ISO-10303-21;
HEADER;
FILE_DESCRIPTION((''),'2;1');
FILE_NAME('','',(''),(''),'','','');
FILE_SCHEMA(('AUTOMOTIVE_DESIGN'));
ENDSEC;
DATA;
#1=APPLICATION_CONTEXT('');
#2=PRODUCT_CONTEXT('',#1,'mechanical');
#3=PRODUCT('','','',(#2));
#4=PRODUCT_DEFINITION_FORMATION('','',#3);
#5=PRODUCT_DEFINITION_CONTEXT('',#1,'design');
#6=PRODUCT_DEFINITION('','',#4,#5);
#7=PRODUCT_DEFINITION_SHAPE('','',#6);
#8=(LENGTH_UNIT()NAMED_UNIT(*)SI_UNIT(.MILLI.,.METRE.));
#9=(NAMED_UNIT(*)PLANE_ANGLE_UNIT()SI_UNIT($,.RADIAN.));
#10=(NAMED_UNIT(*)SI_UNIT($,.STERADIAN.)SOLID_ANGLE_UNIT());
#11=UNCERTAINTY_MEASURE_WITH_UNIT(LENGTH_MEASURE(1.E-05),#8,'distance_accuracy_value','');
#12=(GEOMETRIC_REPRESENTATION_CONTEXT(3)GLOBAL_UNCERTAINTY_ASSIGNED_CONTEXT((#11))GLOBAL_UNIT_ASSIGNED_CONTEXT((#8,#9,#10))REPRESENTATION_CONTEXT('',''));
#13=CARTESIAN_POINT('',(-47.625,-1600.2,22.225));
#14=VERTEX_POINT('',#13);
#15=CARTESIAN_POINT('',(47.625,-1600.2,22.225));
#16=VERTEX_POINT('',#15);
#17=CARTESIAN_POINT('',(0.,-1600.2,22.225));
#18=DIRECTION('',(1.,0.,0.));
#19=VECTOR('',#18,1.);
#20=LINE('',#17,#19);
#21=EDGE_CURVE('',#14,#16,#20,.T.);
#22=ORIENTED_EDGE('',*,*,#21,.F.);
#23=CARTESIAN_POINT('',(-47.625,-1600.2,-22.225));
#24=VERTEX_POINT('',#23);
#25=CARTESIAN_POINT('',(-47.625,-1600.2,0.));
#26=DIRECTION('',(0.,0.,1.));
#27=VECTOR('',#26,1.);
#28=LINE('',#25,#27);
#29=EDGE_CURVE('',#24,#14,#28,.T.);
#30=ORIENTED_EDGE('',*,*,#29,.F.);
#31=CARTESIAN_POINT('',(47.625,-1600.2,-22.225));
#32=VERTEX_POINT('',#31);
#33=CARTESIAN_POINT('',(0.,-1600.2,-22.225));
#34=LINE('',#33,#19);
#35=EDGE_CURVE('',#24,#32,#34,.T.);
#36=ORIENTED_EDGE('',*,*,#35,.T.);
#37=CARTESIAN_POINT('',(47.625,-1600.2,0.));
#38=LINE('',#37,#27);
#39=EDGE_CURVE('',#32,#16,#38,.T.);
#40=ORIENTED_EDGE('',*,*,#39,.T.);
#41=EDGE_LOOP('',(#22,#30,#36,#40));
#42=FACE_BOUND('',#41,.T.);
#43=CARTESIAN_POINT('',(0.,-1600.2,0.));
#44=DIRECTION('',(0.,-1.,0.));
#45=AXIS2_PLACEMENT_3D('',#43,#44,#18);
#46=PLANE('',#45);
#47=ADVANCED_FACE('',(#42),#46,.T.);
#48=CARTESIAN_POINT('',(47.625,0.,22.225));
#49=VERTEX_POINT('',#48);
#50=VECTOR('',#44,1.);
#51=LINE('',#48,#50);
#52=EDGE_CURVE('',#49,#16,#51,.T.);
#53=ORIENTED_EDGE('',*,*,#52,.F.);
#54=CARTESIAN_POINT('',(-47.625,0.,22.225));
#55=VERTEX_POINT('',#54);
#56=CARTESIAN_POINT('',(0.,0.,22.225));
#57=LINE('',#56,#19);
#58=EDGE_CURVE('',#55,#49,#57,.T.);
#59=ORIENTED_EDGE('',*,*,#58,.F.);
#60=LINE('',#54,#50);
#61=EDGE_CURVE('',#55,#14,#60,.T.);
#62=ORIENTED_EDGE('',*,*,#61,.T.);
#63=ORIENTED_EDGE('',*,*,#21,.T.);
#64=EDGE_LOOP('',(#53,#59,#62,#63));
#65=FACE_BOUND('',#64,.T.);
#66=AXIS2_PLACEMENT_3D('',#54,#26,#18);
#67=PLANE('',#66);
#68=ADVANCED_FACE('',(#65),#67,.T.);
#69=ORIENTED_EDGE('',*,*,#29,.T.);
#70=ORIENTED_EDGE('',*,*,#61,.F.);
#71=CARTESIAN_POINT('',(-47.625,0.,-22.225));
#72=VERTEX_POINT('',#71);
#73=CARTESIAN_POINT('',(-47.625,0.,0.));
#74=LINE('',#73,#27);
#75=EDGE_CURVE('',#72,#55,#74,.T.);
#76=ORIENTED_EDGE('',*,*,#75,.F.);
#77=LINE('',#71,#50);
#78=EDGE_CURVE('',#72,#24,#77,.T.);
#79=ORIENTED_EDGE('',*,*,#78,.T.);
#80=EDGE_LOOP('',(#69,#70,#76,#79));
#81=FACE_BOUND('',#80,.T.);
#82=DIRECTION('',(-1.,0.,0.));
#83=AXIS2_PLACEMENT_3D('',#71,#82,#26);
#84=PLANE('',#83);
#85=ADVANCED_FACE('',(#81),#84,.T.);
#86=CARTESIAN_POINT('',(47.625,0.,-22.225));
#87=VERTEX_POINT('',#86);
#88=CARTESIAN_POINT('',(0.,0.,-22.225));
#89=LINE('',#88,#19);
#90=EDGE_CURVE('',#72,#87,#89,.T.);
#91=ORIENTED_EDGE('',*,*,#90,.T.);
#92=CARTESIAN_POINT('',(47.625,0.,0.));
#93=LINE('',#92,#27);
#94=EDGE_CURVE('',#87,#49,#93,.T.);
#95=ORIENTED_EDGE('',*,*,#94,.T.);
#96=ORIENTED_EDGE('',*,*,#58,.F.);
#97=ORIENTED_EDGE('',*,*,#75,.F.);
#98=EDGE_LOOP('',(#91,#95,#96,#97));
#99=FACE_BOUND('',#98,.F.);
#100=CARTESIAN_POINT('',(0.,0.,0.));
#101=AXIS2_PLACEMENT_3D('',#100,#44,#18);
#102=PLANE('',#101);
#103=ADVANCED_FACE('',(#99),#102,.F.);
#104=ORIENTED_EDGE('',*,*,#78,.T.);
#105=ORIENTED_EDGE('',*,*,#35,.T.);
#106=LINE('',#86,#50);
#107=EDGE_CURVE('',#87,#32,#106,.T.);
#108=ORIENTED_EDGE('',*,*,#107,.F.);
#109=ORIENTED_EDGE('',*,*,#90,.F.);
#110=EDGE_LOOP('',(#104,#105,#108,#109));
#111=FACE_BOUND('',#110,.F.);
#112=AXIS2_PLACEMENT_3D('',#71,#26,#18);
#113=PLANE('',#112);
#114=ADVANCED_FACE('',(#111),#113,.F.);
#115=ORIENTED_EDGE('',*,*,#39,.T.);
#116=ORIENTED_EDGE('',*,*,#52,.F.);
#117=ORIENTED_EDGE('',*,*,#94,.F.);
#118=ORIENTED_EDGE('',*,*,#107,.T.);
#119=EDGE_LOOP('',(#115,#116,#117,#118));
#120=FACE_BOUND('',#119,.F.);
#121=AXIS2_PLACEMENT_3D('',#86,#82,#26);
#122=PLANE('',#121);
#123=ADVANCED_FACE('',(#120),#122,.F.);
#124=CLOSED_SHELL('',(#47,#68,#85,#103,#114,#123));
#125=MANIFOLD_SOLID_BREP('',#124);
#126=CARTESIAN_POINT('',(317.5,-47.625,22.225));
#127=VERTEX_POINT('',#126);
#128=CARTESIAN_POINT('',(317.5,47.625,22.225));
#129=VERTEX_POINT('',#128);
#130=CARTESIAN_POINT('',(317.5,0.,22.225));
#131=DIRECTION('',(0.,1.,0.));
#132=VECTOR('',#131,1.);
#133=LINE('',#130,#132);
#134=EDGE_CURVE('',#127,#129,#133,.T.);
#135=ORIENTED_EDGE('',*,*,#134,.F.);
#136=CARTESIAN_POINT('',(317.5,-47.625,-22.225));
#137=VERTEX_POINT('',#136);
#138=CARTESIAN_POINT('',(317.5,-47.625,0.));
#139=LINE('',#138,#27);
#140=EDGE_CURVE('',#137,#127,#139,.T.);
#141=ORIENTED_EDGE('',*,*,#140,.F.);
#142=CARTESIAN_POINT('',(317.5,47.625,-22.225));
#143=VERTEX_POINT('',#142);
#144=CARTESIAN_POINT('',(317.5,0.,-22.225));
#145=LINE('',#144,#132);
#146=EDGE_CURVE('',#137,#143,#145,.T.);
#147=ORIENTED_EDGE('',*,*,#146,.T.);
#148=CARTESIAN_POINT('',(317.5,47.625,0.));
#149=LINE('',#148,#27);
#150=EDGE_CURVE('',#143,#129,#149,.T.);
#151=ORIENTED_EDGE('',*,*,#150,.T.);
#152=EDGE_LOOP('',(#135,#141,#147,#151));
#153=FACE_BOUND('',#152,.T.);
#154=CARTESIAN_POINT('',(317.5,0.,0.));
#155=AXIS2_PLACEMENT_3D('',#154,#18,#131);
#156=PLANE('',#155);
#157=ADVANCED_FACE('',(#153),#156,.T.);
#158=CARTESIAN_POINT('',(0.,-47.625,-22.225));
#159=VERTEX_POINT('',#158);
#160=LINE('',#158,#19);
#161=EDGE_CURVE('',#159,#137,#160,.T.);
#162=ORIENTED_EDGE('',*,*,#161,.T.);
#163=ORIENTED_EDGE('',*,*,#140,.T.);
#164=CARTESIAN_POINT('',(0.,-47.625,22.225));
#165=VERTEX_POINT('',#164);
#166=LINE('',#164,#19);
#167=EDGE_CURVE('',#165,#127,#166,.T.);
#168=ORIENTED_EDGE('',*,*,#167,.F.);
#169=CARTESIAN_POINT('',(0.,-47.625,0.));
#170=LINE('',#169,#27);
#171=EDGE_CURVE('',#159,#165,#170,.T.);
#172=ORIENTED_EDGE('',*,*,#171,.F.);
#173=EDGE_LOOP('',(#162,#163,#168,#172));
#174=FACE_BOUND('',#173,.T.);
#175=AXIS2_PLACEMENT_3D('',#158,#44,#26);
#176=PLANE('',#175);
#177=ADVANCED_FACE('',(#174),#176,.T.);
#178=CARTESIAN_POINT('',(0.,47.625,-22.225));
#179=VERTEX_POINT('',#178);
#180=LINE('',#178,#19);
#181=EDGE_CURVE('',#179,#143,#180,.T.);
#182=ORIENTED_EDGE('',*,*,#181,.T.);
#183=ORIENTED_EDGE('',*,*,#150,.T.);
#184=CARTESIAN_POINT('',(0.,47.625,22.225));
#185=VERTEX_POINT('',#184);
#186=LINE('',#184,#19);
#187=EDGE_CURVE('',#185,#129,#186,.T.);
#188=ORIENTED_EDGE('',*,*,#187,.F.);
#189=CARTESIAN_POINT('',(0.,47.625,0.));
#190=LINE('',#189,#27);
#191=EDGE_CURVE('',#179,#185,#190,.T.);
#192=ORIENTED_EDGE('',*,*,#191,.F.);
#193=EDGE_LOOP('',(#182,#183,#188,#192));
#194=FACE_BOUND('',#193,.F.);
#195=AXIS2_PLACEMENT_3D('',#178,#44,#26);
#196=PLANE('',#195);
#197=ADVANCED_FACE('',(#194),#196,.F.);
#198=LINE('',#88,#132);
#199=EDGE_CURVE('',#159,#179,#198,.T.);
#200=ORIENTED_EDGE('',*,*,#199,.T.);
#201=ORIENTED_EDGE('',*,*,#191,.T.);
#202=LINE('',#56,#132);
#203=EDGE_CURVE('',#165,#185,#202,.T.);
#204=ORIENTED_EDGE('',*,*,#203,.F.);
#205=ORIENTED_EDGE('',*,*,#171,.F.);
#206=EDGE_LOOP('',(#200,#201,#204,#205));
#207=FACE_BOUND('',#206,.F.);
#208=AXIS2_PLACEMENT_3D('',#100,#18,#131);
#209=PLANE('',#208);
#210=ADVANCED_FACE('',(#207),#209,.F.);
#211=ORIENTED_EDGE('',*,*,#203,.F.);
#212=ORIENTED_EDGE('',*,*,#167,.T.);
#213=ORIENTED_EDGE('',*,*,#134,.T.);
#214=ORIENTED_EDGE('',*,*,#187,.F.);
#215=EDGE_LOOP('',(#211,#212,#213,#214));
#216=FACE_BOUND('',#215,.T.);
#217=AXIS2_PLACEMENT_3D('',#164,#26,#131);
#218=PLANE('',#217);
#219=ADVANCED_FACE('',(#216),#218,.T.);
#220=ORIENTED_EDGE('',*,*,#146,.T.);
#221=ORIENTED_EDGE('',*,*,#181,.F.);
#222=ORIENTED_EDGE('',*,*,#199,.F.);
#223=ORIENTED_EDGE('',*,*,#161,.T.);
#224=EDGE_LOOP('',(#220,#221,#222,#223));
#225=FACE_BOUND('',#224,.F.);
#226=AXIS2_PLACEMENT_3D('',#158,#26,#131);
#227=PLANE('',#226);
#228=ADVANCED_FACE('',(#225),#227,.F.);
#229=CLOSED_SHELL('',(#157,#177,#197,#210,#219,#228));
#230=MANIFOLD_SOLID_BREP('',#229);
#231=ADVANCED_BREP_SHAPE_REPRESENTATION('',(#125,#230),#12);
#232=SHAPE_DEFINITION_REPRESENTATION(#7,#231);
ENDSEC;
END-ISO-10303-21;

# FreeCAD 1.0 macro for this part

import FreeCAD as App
import Part
import Sketcher
Q = App.Units.Quantity


def add_polygon(sketch, points):
    """Adds a closed chain of lines whose ends are joined by coincident constraints."""
    first, n = sketch.GeometryCount, len(points)
    for a, b in zip(points, points[1:] + points[:1]):
        sketch.addGeometry(Part.LineSegment(App.Vector(*a, 0), App.Vector(*b, 0)), False)
    for i in range(n):
        sketch.addConstraint(Sketcher.Constraint("Coincident", first + i, 2, first + (i + 1) % n, 1))

doc = App.newDocument("Part")
body = doc.addObject("PartDesign::Body", "Body")

# Sketch on XZ plane
sketch1 = body.newObject("Sketcher::SketchObject", "Sketch")
sketch1.AttachmentSupport = (doc.getObject("XZ_Plane"), [""])
sketch1.MapMode = "FlatFace"
add_polygon(sketch1, [(-48, 22), (-48, -22), (48, -22), (48, 22)])  # lines 0-3
sketch1.addConstraint([
    Sketcher.Constraint("Vertical", 0),
    Sketcher.Constraint("Horizontal", 1),
    Sketcher.Constraint("Vertical", 2),
    Sketcher.Constraint("Horizontal", 3),
    Sketcher.Constraint("Symmetric", 0, 2, 2, 2, -1, 1),
    Sketcher.Constraint("DistanceX", 1, 1, 1, 2, Q("3.75 in")),
    Sketcher.Constraint("DistanceY", 0, 2, 0, 1, Q("1.75 in")),
])
pad1 = body.newObject("PartDesign::Pad", "Pad")
pad1.Profile = sketch1
pad1.Length = Q("63 in")
body2 = doc.addObject("PartDesign::Body", "Body001")

# Sketch on YZ plane
sketch2 = body2.newObject("Sketcher::SketchObject", "Sketch001")
sketch2.AttachmentSupport = (doc.getObject("YZ_Plane001"), [""])
sketch2.MapMode = "FlatFace"
add_polygon(sketch2, [(-48, 22), (-48, -22), (48, -22), (48, 22)])  # lines 0-3
sketch2.addConstraint([
    Sketcher.Constraint("Vertical", 0),
    Sketcher.Constraint("Horizontal", 1),
    Sketcher.Constraint("Vertical", 2),
    Sketcher.Constraint("Horizontal", 3),
    Sketcher.Constraint("Symmetric", 0, 2, 2, 2, -1, 1),
    Sketcher.Constraint("DistanceX", 1, 1, 1, 2, Q("3.75 in")),
    Sketcher.Constraint("DistanceY", 0, 2, 0, 1, Q("1.75 in")),
])
pad2 = body2.newObject("PartDesign::Pad", "Pad001")
pad2.Profile = sketch2
pad2.Length = Q("12.5 in")

doc.recompute()
